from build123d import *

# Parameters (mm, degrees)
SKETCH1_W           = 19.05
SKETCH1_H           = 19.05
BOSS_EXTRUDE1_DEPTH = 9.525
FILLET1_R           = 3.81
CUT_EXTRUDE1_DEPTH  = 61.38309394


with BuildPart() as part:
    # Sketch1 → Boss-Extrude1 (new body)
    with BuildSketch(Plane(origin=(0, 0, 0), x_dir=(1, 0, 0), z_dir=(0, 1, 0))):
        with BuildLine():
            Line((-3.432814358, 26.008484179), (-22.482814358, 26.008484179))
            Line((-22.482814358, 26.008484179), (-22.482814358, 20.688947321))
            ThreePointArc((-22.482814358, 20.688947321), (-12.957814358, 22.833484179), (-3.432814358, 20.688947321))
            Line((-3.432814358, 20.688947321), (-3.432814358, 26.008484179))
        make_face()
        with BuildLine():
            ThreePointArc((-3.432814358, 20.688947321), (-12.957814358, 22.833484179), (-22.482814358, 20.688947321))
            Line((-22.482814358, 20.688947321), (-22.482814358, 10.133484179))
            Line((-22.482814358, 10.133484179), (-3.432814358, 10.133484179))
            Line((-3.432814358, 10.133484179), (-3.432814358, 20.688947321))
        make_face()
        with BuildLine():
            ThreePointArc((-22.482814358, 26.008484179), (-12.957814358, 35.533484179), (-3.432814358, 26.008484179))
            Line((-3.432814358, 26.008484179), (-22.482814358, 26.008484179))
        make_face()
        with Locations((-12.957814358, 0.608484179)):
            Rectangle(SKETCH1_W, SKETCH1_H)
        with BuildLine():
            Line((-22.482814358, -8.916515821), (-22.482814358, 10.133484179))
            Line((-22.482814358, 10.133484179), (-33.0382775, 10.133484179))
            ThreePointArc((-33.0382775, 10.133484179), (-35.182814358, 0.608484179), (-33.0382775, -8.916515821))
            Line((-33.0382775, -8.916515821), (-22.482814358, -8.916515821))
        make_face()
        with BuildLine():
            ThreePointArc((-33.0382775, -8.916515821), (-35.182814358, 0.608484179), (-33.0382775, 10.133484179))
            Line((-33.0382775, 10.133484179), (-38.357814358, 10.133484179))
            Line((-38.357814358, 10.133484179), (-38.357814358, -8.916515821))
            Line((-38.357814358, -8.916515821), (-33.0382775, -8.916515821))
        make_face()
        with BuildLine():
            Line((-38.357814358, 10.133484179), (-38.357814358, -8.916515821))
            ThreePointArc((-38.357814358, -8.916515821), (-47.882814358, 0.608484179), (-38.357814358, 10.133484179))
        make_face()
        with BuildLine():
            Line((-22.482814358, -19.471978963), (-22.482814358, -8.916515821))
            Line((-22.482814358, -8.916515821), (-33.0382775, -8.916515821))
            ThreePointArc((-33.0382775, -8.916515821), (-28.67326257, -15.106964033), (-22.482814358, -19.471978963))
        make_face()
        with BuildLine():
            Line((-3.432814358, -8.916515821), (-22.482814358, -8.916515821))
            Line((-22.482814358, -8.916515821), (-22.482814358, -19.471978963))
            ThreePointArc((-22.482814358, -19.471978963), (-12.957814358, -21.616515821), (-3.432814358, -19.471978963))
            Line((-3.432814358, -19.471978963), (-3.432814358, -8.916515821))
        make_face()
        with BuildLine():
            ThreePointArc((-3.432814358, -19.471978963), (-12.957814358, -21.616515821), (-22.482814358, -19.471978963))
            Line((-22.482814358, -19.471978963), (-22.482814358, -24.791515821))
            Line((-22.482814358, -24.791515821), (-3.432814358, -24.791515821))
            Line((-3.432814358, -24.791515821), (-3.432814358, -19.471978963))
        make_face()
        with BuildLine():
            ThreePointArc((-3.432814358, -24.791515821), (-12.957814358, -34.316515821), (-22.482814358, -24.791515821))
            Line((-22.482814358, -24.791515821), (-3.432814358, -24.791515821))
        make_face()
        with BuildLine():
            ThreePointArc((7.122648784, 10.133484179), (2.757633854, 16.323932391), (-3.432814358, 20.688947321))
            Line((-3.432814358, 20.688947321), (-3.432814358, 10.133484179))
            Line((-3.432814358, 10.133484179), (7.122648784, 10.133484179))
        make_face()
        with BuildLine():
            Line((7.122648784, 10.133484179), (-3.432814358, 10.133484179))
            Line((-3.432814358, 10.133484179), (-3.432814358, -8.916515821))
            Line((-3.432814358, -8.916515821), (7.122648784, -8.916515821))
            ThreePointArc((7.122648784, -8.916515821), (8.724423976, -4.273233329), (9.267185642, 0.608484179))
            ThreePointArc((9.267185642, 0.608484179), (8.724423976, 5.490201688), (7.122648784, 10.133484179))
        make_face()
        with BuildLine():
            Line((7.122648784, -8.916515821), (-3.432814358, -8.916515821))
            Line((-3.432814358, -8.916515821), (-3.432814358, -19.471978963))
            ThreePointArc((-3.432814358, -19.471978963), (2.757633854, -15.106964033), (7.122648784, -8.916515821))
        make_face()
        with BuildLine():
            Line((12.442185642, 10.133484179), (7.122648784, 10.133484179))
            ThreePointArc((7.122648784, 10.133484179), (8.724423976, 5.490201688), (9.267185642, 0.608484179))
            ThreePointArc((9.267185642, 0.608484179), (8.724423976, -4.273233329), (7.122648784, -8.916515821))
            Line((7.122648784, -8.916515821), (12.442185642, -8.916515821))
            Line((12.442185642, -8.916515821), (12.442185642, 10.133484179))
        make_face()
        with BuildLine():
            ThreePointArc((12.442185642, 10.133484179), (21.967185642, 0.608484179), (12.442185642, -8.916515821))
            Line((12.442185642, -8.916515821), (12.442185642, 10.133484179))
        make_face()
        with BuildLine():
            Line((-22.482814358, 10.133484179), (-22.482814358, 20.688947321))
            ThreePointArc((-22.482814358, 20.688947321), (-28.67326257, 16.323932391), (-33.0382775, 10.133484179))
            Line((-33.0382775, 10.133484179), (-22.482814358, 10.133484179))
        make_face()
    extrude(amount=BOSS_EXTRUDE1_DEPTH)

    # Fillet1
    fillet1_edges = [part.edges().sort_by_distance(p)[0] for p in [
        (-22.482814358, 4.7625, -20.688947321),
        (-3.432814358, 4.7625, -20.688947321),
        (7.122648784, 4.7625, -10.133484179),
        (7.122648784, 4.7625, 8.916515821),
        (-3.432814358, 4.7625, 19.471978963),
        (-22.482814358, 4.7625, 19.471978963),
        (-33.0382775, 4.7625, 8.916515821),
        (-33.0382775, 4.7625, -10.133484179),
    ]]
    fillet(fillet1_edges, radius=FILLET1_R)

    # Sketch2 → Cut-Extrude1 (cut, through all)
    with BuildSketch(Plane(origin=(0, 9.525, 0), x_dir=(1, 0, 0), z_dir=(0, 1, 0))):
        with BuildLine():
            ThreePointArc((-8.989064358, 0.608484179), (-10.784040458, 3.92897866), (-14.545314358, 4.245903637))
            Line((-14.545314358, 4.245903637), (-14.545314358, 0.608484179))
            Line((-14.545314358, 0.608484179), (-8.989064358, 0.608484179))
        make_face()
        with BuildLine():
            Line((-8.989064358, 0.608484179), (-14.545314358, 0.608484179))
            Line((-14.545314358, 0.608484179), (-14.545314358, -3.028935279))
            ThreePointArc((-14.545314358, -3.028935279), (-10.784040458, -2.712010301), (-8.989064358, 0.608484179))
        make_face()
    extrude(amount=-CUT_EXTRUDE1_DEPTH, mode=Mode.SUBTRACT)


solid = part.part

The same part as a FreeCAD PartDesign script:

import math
import FreeCAD as App
import Part
import Sketcher
Q = App.Units.Quantity


def edges_at(feature, points):
    """Names of the edges that pass closest to the given points."""
    edges = feature.Shape.Edges
    near = lambda p: min(range(len(edges)), key=lambda i: edges[i].distToShape(Part.Vertex(*p))[0])
    return sorted({f"Edge{near(p) + 1}" for p in points})

doc = App.newDocument("Part")
body = doc.addObject("PartDesign::Body", "Body")

sketch1 = body.newObject("Sketcher::SketchObject", "Sketch")
sketch1.AttachmentSupport = (doc.getObject("XZ_Plane"), [""])
sketch1.MapMode = "FlatFace"
sketch1.addGeometry([
    Part.LineSegment(App.Vector(-22, -26, 0), App.Vector(-22, -21, 0)),
    Part.ArcOfCircle(Part.Circle(App.Vector(-13, -1, 0), App.Vector(0, 0, 1), 22), math.radians(-155), math.radians(-115)),
    Part.LineSegment(App.Vector(-33, -10, 0), App.Vector(-38, -10, 0)),
    Part.ArcOfCircle(Part.Circle(App.Vector(-38, -1, 0), App.Vector(0, 0, 1), 10), math.radians(90), math.radians(270)),
    Part.LineSegment(App.Vector(-38, 9, 0), App.Vector(-33, 9, 0)),
    Part.ArcOfCircle(Part.Circle(App.Vector(-13, -1, 0), App.Vector(0, 0, 1), 22), math.radians(115), math.radians(155)),
    Part.LineSegment(App.Vector(-22, 19, 0), App.Vector(-22, 25, 0)),
    Part.ArcOfCircle(Part.Circle(App.Vector(-13, 25, 0), App.Vector(0, 0, 1), 10), math.radians(0), math.radians(180)),
    Part.LineSegment(App.Vector(-3, 25, 0), App.Vector(-3, 19, 0)),
    Part.ArcOfCircle(Part.Circle(App.Vector(-13, -1, 0), App.Vector(0, 0, 1), 22), math.radians(25), math.radians(65)),
    Part.LineSegment(App.Vector(7, 9, 0), App.Vector(12, 9, 0)),
    Part.ArcOfCircle(Part.Circle(App.Vector(12, -1, 0), App.Vector(0, 0, 1), 10), math.radians(-90), math.radians(90)),
    Part.LineSegment(App.Vector(12, -10, 0), App.Vector(7, -10, 0)),
    Part.ArcOfCircle(Part.Circle(App.Vector(-13, -1, 0), App.Vector(0, 0, 1), 22), math.radians(-65), math.radians(-25)),
    Part.LineSegment(App.Vector(-3, -21, 0), App.Vector(-3, -26, 0)),
    Part.ArcOfCircle(Part.Circle(App.Vector(-13, -26, 0), App.Vector(0, 0, 1), 10), math.radians(180), math.radians(360)),
], False)
sketch1.addConstraint([
    Sketcher.Constraint("Coincident", 0, 2, 1, 2),
    Sketcher.Constraint("Coincident", 1, 1, 2, 1),
    Sketcher.Constraint("Tangent", 2, 2, 3, 2),
    Sketcher.Constraint("Tangent", 3, 1, 4, 1),
    Sketcher.Constraint("Coincident", 4, 2, 5, 2),
    Sketcher.Constraint("Coincident", 5, 1, 6, 1),
    Sketcher.Constraint("Tangent", 6, 2, 7, 2),
    Sketcher.Constraint("Tangent", 7, 1, 8, 1),
    Sketcher.Constraint("Coincident", 8, 2, 9, 2),
    Sketcher.Constraint("Coincident", 9, 1, 10, 1),
    Sketcher.Constraint("Tangent", 10, 2, 11, 2),
    Sketcher.Constraint("Tangent", 11, 1, 12, 1),
    Sketcher.Constraint("Coincident", 12, 2, 13, 2),
    Sketcher.Constraint("Coincident", 13, 1, 14, 1),
    Sketcher.Constraint("Tangent", 14, 2, 15, 2),
    Sketcher.Constraint("Tangent", 15, 1, 0, 1),
    Sketcher.Constraint("Vertical", 0),
    Sketcher.Constraint("Horizontal", 2),
    Sketcher.Constraint("Horizontal", 4),
    Sketcher.Constraint("Vertical", 6),
    Sketcher.Constraint("Vertical", 8),
    Sketcher.Constraint("Horizontal", 10),
    Sketcher.Constraint("Horizontal", 12),
    Sketcher.Constraint("Vertical", 14),
    Sketcher.Constraint("Coincident", 5, 3, 1, 3),
    Sketcher.Constraint("Coincident", 9, 3, 1, 3),
    Sketcher.Constraint("Coincident", 13, 3, 1, 3),
    Sketcher.Constraint("Equal", 1, 5),
    Sketcher.Constraint("Equal", 3, 7),
    Sketcher.Constraint("Equal", 5, 9),
    Sketcher.Constraint("Equal", 7, 11),
    Sketcher.Constraint("Equal", 9, 13),
    Sketcher.Constraint("Equal", 11, 15),
    Sketcher.Constraint("Horizontal", 1, 3, 3, 3),
    Sketcher.Constraint("Horizontal", 9, 3, 11, 3),
    Sketcher.Constraint("Horizontal", 5, 1, 8, 2),
    Sketcher.Constraint("Horizontal", 0, 2, 13, 1),
    Sketcher.Constraint("Equal", 4, 10),
    Sketcher.Constraint("Equal", 12, 0),
    Sketcher.Constraint("Equal", 0, 6),
    Sketcher.Constraint("Radius", 1, Q("0.875 in")),
    Sketcher.Constraint("Radius", 3, Q("0.375 in")),
    Sketcher.Constraint("DistanceX", 3, 3, 1, 3, Q("1 in")),
    Sketcher.Constraint("DistanceY", -1, 1, 5, 1, Q("19.471979 mm")),
    Sketcher.Constraint("DistanceX", -1, 1, 9, 1, Q("7.122649 mm")),
])
pad1 = body.newObject("PartDesign::Pad", "Pad")
pad1.Profile = sketch1
pad1.Length = Q("0.375 in")
pad1.Reversed = True
doc.recompute()

fillet = body.newObject("PartDesign::Fillet", "Fillet")
fillet.Base = (pad1, edges_at(pad1, [
    (-22.483, 4.763, -20.689),
    (-3.433, 4.763, -20.689),
    (7.123, 4.763, -10.133),
    (7.123, 4.763, 8.917),
    (-3.433, 4.763, 19.472),
    (-22.483, 4.763, 19.472),
    (-33.038, 4.763, 8.917),
    (-33.038, 4.763, -10.133),
]))
fillet.Radius = Q("0.15 in")

sketch2 = body.newObject("Sketcher::SketchObject", "Sketch001")
sketch2.AttachmentSupport = (doc.getObject("XZ_Plane"), [""])
sketch2.MapMode = "FlatFace"
sketch2.AttachmentOffset = App.Placement(App.Vector(0, 0, -0.375 * 25.4), App.Rotation())
sketch2.addGeometry([
    Part.ArcOfCircle(Part.Circle(App.Vector(-13, -0.6, 0), App.Vector(0, 0, 1), 4), math.radians(-114), math.radians(0)),
    Part.LineSegment(App.Vector(-14.5, -4.2, 0), App.Vector(-14.5, 3, 0)),
    Part.ArcOfCircle(Part.Circle(App.Vector(-13, -0.6, 0), App.Vector(0, 0, 1), 4), math.radians(0), math.radians(114)),
], False)
sketch2.addConstraint([
    Sketcher.Constraint("Coincident", 0, 1, 1, 1),
    Sketcher.Constraint("Coincident", 1, 2, 2, 2),
    Sketcher.Constraint("Tangent", 2, 1, 0, 2),
    Sketcher.Constraint("Vertical", 1),
    Sketcher.Constraint("Equal", 0, 2),
    Sketcher.Constraint("Horizontal", 0, 3, 2, 1),
    Sketcher.Constraint("Radius", 0, Q("0.15625 in")),
    Sketcher.Constraint("DistanceX", 0, 1, 2, 3, Q("0.0625 in")),
    Sketcher.Constraint("DistanceX", 2, 1, -1, 1, Q("0.3539002 in")),
    Sketcher.Constraint("DistanceY", 0, 3, -1, 1, Q("0.608484 mm")),
])
pocket1 = body.newObject("PartDesign::Pocket", "Pocket")
pocket1.Profile = sketch2
pocket1.Type = "ThroughAll"
pocket1.Reversed = True

doc.recompute()
